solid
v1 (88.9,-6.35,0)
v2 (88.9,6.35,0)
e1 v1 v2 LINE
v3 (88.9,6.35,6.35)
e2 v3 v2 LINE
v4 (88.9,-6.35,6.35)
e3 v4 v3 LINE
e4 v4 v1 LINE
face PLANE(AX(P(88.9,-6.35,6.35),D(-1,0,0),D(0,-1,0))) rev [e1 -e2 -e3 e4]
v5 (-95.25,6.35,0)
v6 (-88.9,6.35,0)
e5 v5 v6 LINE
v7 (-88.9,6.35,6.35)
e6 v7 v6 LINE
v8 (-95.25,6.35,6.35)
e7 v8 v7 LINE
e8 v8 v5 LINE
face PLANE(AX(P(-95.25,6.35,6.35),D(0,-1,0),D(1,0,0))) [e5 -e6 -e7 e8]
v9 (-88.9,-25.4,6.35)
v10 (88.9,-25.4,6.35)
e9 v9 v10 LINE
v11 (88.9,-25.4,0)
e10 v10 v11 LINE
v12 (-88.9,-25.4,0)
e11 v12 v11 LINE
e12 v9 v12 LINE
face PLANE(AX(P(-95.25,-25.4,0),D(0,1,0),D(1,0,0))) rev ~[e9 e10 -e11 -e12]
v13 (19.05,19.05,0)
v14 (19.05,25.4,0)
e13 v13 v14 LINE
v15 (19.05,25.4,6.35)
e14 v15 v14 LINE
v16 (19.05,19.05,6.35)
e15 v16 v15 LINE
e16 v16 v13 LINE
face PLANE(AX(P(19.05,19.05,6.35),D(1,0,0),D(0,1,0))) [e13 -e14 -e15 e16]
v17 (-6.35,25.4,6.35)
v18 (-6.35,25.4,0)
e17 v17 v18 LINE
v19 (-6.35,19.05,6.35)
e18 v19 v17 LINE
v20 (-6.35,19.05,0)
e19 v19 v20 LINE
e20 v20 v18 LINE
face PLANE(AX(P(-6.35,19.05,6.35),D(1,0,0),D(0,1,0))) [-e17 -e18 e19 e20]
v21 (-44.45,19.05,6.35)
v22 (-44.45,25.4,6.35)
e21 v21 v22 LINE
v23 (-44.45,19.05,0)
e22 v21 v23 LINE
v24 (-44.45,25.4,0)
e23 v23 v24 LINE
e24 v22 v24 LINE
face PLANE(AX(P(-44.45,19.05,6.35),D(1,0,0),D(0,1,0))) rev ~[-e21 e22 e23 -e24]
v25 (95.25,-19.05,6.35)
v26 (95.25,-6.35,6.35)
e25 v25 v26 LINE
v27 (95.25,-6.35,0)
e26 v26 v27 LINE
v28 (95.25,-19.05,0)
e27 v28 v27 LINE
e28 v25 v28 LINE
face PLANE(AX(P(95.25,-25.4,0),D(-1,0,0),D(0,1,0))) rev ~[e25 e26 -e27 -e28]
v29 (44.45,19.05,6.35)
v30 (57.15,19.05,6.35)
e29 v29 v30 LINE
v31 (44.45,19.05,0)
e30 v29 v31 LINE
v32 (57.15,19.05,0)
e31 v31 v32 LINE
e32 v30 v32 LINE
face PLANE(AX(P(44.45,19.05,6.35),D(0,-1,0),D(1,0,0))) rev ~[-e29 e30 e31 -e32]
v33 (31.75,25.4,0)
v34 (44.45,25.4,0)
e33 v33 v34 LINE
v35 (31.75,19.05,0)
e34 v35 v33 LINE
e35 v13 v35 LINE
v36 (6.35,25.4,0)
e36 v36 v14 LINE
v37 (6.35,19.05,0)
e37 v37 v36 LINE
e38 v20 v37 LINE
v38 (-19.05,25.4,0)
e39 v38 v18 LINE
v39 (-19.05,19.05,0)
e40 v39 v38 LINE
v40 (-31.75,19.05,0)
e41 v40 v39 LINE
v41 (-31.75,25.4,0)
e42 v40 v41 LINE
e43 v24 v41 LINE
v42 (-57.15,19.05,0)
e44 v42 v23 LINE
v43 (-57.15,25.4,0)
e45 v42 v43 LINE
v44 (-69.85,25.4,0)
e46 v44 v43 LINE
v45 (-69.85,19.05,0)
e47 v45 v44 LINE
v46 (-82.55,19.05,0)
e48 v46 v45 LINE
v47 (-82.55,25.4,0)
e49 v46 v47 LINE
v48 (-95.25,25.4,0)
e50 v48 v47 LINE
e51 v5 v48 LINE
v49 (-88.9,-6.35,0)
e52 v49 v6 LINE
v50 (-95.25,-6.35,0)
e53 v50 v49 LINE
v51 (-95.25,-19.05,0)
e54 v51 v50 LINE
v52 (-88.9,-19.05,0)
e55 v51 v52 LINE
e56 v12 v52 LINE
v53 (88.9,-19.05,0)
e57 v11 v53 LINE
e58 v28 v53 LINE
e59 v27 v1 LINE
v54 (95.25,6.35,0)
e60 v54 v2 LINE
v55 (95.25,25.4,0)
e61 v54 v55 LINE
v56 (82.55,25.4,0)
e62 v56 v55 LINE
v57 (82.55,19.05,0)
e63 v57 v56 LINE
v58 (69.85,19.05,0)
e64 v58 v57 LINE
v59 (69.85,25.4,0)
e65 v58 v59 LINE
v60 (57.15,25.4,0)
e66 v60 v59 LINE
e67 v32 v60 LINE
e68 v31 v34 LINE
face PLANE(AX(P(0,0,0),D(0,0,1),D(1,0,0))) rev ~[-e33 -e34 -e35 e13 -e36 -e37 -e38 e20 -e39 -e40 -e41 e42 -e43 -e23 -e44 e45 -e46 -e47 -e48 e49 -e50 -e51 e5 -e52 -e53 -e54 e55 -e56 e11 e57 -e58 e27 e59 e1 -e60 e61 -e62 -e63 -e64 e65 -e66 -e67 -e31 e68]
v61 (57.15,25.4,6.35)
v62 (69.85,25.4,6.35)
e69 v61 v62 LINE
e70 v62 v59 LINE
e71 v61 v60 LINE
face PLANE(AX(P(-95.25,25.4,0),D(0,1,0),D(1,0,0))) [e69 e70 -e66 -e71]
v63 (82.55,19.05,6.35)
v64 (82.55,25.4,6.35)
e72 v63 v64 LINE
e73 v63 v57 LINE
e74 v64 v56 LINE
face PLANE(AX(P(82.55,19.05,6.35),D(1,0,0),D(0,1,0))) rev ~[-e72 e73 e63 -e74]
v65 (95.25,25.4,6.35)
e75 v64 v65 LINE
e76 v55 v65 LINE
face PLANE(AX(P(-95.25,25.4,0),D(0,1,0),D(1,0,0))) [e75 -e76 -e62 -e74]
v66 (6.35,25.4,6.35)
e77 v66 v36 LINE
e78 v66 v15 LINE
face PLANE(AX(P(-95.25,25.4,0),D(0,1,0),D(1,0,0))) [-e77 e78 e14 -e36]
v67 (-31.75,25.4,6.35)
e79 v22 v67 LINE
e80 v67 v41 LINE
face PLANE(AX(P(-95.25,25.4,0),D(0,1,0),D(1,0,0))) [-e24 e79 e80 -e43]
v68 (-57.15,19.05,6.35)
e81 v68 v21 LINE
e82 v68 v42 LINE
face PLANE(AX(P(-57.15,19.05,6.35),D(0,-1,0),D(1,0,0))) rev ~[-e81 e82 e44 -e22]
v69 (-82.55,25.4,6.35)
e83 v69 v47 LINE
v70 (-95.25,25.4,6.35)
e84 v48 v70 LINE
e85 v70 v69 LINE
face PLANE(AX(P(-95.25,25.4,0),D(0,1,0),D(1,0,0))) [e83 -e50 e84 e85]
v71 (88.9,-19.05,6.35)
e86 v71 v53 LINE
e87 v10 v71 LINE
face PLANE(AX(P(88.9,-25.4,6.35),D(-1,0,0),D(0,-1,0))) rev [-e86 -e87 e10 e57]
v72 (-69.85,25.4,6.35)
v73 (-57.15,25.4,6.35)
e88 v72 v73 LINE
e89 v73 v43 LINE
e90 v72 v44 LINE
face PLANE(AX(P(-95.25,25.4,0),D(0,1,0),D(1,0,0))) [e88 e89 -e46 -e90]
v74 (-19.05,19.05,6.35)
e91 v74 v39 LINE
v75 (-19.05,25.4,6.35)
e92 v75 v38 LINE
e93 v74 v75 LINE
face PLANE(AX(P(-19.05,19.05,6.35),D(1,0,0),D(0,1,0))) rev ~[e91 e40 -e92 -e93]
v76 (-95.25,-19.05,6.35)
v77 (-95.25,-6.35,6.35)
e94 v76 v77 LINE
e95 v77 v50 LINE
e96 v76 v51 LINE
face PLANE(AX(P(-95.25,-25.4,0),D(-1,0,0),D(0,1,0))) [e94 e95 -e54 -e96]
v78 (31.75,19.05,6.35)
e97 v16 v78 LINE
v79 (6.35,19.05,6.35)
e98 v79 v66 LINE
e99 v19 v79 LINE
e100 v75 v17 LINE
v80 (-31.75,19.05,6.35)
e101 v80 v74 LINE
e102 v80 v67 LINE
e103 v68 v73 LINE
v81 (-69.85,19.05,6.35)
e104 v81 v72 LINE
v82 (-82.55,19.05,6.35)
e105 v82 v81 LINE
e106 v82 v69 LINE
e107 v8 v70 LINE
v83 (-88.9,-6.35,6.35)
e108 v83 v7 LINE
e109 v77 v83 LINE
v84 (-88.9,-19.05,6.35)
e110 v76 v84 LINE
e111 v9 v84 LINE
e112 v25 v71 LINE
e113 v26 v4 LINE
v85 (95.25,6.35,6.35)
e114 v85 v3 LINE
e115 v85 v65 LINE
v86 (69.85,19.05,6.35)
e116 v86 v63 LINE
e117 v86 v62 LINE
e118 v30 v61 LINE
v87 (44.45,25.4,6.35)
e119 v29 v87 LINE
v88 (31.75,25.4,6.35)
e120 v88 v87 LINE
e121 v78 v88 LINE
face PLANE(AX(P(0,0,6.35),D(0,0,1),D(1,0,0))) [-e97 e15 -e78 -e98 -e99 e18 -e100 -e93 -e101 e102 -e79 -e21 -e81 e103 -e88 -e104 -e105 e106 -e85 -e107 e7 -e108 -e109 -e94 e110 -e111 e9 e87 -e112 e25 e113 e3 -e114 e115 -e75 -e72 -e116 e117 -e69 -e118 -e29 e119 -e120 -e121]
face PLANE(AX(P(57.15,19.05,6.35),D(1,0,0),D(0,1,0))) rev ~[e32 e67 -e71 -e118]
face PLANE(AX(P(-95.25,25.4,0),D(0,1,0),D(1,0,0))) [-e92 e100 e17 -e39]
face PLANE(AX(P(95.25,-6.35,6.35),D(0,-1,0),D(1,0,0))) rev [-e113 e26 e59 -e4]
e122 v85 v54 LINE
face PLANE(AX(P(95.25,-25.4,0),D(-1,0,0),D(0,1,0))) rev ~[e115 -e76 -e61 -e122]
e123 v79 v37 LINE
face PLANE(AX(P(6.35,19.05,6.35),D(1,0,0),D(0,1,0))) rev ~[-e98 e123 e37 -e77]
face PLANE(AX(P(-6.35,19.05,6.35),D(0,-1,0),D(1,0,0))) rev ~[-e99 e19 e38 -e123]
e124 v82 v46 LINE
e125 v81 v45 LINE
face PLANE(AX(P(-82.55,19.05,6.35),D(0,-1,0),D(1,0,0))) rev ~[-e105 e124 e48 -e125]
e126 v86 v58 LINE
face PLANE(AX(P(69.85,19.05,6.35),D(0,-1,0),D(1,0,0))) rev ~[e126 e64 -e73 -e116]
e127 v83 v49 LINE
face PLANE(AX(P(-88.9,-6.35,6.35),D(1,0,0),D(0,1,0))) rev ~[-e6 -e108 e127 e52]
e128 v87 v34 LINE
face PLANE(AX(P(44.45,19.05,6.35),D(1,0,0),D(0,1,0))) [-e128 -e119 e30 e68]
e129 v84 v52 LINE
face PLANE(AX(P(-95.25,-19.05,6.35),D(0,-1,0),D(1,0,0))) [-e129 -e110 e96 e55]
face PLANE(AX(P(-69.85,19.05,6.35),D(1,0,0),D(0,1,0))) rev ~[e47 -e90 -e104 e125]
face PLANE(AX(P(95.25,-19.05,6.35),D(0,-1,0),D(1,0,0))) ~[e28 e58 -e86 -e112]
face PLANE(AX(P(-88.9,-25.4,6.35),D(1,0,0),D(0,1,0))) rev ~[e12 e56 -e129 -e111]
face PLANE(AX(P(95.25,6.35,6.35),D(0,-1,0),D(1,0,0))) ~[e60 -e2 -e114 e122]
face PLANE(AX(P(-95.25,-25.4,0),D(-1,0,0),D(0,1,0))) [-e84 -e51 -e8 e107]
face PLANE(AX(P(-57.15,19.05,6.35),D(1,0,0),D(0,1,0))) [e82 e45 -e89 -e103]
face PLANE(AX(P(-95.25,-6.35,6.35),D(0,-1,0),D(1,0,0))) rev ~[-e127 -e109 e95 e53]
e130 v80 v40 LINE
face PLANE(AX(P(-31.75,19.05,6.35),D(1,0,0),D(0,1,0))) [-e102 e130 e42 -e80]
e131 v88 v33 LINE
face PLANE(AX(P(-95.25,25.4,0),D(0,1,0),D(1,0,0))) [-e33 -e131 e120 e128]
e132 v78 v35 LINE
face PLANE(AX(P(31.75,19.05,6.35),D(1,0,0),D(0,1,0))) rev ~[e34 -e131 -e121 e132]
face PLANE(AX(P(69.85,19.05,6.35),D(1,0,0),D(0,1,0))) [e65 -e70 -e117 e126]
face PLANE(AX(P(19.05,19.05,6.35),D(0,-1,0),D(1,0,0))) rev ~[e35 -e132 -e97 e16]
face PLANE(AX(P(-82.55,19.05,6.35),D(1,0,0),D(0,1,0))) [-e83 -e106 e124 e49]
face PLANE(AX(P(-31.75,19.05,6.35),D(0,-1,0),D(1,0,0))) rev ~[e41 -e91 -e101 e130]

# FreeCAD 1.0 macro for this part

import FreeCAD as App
import Part
import Sketcher

V = App.Vector
Q = App.Units.Quantity


def add_polygon(sketch, points):
    """Adds a closed chain of lines whose ends are joined by coincident constraints."""
    first, n = sketch.GeometryCount, len(points)
    for a, b in zip(points, points[1:] + points[:1]):
        sketch.addGeometry(Part.LineSegment(App.Vector(*a, 0), App.Vector(*b, 0)), False)
    for i in range(n):
        sketch.addConstraint(Sketcher.Constraint("Coincident", first + i, 2, first + (i + 1) % n, 1))

doc = App.newDocument("Part")
body = doc.addObject("PartDesign::Body", "Body")

sketch1 = doc.addObject("Sketcher::SketchObject", "Sketch")
body.addObject(sketch1)
sketch1.AttachmentSupport = (doc.XY_Plane, [""])
sketch1.MapMode = "FlatFace"
add_polygon(sketch1, [(-95, 25), (-95, -25), (95, -25), (95, 25)])
sketch1.addConstraint(Sketcher.Constraint("Vertical", 0))
sketch1.addConstraint(Sketcher.Constraint("Horizontal", 1))
sketch1.addConstraint(Sketcher.Constraint("Vertical", 2))
sketch1.addConstraint(Sketcher.Constraint("Horizontal", 3))
sketch1.addConstraint(Sketcher.Constraint("Symmetric", 0, 2, 2, 2, -1, 1))
sketch1.addConstraint(Sketcher.Constraint("DistanceY", 0, 2, 0, 1, Q("2 in")))
sketch1.addConstraint(Sketcher.Constraint("DistanceX", 1, 1, 1, 2, Q("7.5 in")))
pad1 = doc.addObject("PartDesign::Pad", "Pad")
body.addObject(pad1)
pad1.Profile = sketch1
pad1.Length = Q("0.25 in")

sketch2 = doc.addObject("Sketcher::SketchObject", "Sketch001")
body.addObject(sketch2)
sketch2.AttachmentSupport = (doc.XY_Plane, [""])
sketch2.MapMode = "FlatFace"
sketch2.AttachmentOffset = App.Placement(V(0, 0, 0.25 * 25.4), App.Rotation())
add_polygon(sketch2, [(-95, 6), (-95, -6), (-89, -6), (-89, 6)])
sketch2.addConstraint(Sketcher.Constraint("Vertical", 0))
sketch2.addConstraint(Sketcher.Constraint("Horizontal", 1))
sketch2.addConstraint(Sketcher.Constraint("Vertical", 2))
sketch2.addConstraint(Sketcher.Constraint("Horizontal", 3))
sketch2.addConstraint(Sketcher.Constraint("DistanceY", 0, 2, 0, 1, Q("0.5 in")))
sketch2.addConstraint(Sketcher.Constraint("DistanceX", 1, 1, 1, 2, Q("0.25 in")))
sketch2.addConstraint(Sketcher.Constraint("DistanceX", 1, 2, -1, 1, Q("3.5 in")))
sketch2.addConstraint(Sketcher.Constraint("DistanceY", 0, 2, -1, 1, Q("0.25 in")))
pocket1 = doc.addObject("PartDesign::Pocket", "Pocket")
body.addObject(pocket1)
pocket1.Profile = sketch2
pocket1.Type = "ThroughAll"

sketch3 = doc.addObject("Sketcher::SketchObject", "Sketch002")
body.addObject(sketch3)
sketch3.AttachmentSupport = (doc.XY_Plane, [""])
sketch3.MapMode = "FlatFace"
sketch3.AttachmentOffset = App.Placement(V(0, 0, 0.25 * 25.4), App.Rotation())
add_polygon(sketch3, [(-95, -19), (-95, -25), (-89, -25), (-89, -19)])
sketch3.addConstraint(Sketcher.Constraint("Vertical", 0))
sketch3.addConstraint(Sketcher.Constraint("Horizontal", 1))
sketch3.addConstraint(Sketcher.Constraint("Vertical", 2))
sketch3.addConstraint(Sketcher.Constraint("Horizontal", 3))
sketch3.addConstraint(Sketcher.Constraint("Equal", 3, 0))
sketch3.addConstraint(Sketcher.Constraint("DistanceY", 0, 2, -1, 1, Q("1 in")))
sketch3.addConstraint(Sketcher.Constraint("DistanceX", 1, 1, 1, 2, Q("0.25 in")))
sketch3.addConstraint(Sketcher.Constraint("DistanceX", 1, 2, -1, 1, Q("3.5 in")))
pocket2 = doc.addObject("PartDesign::Pocket", "Pocket001")
body.addObject(pocket2)
pocket2.Profile = sketch3
pocket2.Type = "ThroughAll"
doc.recompute()

mirrored = doc.addObject("PartDesign::Mirrored", "Mirrored")
body.addObject(mirrored)
mirrored.Originals = [pocket2]
mirrored.MirrorPlane = (doc.YZ_Plane, [""])
body.Tip = mirrored
doc.recompute()

mirrored2 = doc.addObject("PartDesign::Mirrored", "Mirrored001")
body.addObject(mirrored2)
mirrored2.Originals = [pocket1]
mirrored2.MirrorPlane = (doc.YZ_Plane, [""])
body.Tip = mirrored2

sketch4 = doc.addObject("Sketcher::SketchObject", "Sketch003")
body.addObject(sketch4)
sketch4.AttachmentSupport = (doc.XY_Plane, [""])
sketch4.MapMode = "FlatFace"
sketch4.AttachmentOffset = App.Placement(V(0, 0, 0.25 * 25.4), App.Rotation())
add_polygon(sketch4, [(-83, 25), (-83, 19), (-70, 19), (-70, 25)])
sketch4.addConstraint(Sketcher.Constraint("Vertical", 0))
sketch4.addConstraint(Sketcher.Constraint("Horizontal", 1))
sketch4.addConstraint(Sketcher.Constraint("Vertical", 2))
sketch4.addConstraint(Sketcher.Constraint("Horizontal", 3))
sketch4.addConstraint(Sketcher.Constraint("DistanceX", 1, 1, 1, 2, Q("0.5 in")))
sketch4.addConstraint(Sketcher.Constraint("DistanceY", -1, 1, 2, 2, Q("1 in")))
sketch4.addConstraint(Sketcher.Constraint("DistanceY", 0, 2, 0, 1, Q("0.25 in")))
sketch4.addConstraint(Sketcher.Constraint("DistanceX", 0, 2, -1, 1, Q("3.25 in")))
pocket3 = doc.addObject("PartDesign::Pocket", "Pocket002")
body.addObject(pocket3)
pocket3.Profile = sketch4
pocket3.Type = "ThroughAll"
doc.recompute()

linearpattern = doc.addObject("PartDesign::LinearPattern", "LinearPattern")
body.addObject(linearpattern)
linearpattern.Originals = [pocket3]
linearpattern.Direction = (doc.X_Axis, [""])
linearpattern.Mode = "offset"
linearpattern.Offset = Q("1 in")
linearpattern.Occurrences = 7
body.Tip = linearpattern

doc.recompute()
